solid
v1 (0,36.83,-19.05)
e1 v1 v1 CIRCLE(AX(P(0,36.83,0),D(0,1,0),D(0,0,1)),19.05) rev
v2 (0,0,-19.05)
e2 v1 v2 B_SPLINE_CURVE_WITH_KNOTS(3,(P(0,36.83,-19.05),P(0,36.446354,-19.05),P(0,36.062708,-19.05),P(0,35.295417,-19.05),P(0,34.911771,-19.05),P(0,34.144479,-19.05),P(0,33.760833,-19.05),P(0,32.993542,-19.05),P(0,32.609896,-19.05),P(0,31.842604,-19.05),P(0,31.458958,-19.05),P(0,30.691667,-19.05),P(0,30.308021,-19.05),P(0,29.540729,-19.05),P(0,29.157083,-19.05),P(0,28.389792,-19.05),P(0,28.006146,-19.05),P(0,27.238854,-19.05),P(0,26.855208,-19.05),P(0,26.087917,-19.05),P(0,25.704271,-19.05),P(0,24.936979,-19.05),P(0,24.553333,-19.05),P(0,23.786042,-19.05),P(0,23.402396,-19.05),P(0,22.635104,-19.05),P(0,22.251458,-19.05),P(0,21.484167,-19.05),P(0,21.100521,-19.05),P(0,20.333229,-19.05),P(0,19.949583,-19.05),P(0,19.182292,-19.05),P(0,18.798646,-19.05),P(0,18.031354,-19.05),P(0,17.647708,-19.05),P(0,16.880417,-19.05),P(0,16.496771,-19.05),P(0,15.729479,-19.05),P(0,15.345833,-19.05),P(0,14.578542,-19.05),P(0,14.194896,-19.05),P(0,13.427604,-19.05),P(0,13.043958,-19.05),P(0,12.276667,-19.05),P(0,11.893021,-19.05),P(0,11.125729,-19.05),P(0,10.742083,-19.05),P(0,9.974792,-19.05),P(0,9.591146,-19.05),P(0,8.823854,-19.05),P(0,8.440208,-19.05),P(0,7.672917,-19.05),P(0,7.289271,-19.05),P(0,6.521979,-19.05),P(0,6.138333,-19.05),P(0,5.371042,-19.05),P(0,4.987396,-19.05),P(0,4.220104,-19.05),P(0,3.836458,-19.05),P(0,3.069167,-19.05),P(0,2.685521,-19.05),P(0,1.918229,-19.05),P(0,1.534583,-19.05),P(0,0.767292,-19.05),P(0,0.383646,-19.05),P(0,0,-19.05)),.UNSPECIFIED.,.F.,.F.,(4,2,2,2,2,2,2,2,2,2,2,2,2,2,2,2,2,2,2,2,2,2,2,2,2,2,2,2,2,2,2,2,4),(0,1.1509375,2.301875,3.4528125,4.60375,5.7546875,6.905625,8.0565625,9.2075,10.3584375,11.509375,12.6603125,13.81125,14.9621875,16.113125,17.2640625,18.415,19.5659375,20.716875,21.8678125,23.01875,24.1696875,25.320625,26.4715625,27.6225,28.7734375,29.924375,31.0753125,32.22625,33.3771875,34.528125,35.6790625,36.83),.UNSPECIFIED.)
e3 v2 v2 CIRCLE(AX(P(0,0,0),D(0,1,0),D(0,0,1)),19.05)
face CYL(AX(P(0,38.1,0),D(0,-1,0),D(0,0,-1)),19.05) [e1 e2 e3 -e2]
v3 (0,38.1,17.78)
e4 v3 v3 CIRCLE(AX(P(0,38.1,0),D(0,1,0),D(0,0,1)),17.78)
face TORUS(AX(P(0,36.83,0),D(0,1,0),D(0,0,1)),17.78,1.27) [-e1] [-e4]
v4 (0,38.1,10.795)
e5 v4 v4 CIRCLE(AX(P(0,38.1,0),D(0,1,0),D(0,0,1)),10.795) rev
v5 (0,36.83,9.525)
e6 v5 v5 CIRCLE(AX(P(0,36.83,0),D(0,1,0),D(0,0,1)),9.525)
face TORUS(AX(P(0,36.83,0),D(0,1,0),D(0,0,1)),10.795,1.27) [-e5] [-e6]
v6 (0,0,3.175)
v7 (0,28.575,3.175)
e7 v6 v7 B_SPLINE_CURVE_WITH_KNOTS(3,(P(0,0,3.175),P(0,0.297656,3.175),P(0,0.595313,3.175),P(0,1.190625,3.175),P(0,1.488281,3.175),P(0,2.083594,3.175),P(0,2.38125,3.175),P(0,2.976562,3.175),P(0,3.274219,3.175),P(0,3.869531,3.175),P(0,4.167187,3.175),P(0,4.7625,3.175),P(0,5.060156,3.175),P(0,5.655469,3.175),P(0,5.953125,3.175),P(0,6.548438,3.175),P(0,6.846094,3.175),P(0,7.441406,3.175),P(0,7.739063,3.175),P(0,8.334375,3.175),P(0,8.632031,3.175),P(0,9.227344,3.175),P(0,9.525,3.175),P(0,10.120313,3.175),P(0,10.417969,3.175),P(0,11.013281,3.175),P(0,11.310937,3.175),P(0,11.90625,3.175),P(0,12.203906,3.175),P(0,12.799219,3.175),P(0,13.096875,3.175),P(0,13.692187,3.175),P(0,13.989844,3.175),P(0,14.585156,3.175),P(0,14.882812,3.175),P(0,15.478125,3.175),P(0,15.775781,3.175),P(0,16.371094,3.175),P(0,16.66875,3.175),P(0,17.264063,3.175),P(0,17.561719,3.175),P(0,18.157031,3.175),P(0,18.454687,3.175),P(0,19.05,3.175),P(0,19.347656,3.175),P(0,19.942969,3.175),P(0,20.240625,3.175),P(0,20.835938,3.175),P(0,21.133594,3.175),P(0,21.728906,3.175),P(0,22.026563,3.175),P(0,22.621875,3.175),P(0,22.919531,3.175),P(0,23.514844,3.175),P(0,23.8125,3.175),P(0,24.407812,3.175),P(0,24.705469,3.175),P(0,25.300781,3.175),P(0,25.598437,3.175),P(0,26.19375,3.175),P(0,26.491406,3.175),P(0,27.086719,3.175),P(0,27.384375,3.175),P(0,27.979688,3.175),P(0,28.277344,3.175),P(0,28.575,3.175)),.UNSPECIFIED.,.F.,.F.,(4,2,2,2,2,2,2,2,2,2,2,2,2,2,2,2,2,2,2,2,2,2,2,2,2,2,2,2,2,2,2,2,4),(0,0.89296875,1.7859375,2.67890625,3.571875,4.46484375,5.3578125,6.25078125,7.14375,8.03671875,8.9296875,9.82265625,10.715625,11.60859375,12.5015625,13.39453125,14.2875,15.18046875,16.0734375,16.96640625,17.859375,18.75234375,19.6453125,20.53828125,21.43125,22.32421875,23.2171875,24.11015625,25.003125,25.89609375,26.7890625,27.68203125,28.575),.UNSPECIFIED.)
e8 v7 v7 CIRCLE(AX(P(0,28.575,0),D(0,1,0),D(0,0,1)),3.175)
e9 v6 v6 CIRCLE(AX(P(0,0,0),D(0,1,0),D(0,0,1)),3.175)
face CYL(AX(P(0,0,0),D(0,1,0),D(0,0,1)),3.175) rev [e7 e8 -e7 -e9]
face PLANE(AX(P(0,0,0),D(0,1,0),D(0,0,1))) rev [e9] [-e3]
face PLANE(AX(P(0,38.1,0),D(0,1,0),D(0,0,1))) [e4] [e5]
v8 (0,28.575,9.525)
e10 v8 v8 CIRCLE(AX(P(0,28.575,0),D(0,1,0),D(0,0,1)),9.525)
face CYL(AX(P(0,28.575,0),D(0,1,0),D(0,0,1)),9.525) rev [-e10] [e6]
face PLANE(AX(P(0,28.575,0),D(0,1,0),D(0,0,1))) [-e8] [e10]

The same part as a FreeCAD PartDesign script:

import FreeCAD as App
import Part
import Sketcher

V = App.Vector
Q = App.Units.Quantity


def edges_at(feature, points):
    """Names of the edges that pass closest to the given points."""
    edges = feature.Shape.Edges
    near = lambda p: min(range(len(edges)), key=lambda i: edges[i].distToShape(Part.Vertex(*p))[0])
    return sorted({f"Edge{near(p) + 1}" for p in points})

doc = App.newDocument("Part")
body = doc.addObject("PartDesign::Body", "Body")

sketch1 = doc.addObject("Sketcher::SketchObject", "Sketch")
body.addObject(sketch1)
sketch1.AttachmentSupport = (doc.XZ_Plane, [""])
sketch1.MapMode = "FlatFace"
sketch1.addGeometry(Part.Circle(V(0, 0, 0), V(0, 0, 1), 19.05), False)
sketch1.addConstraint([
    Sketcher.Constraint("Coincident", 0, 3, -1, 1),
    Sketcher.Constraint("Diameter", 0, Q("1.5 in")),
])
pad1 = doc.addObject("PartDesign::Pad", "Pad")
body.addObject(pad1)
pad1.Profile = sketch1
pad1.Length = Q("1.5 in")
pad1.Reversed = True

sketch2 = doc.addObject("Sketcher::SketchObject", "Sketch001")
body.addObject(sketch2)
sketch2.AttachmentSupport = (doc.XZ_Plane, [""])
sketch2.MapMode = "FlatFace"
sketch2.AttachmentOffset = App.Placement(V(0, 0, -1.5 * 25.4), App.Rotation())
sketch2.addGeometry(Part.Circle(V(0, 0, 0), V(0, 0, 1), 9.525), False)
sketch2.addConstraint([
    Sketcher.Constraint("Coincident", 0, 3, -1, 1),
    Sketcher.Constraint("Diameter", 0, Q("0.75 in")),
])
pocket1 = doc.addObject("PartDesign::Pocket", "Pocket")
body.addObject(pocket1)
pocket1.Profile = sketch2
pocket1.Length = Q("0.375 in")
pocket1.Reversed = True

sketch3 = doc.addObject("Sketcher::SketchObject", "Sketch002")
body.addObject(sketch3)
sketch3.AttachmentSupport = (doc.XZ_Plane, [""])
sketch3.MapMode = "FlatFace"
sketch3.AttachmentOffset = App.Placement(V(0, 0, -1.125 * 25.4), App.Rotation())
sketch3.addGeometry(Part.Circle(V(0, 0, 0), V(0, 0, 1), 3.175), False)
sketch3.addConstraint([
    Sketcher.Constraint("Coincident", 0, 3, -1, 1),
    Sketcher.Constraint("Diameter", 0, Q("0.25 in")),
])
pocket2 = doc.addObject("PartDesign::Pocket", "Pocket001")
body.addObject(pocket2)
pocket2.Profile = sketch3
pocket2.Type = "ThroughAll"
pocket2.Reversed = True
doc.recompute()

fillet = doc.addObject("PartDesign::Fillet", "Fillet")
body.addObject(fillet)
fillet.Base = (pocket2, edges_at(pocket2, [(0, 38.1, 19.05), (0, 38.1, -9.525)]))
fillet.Radius = Q("0.05 in")

doc.recompute()
